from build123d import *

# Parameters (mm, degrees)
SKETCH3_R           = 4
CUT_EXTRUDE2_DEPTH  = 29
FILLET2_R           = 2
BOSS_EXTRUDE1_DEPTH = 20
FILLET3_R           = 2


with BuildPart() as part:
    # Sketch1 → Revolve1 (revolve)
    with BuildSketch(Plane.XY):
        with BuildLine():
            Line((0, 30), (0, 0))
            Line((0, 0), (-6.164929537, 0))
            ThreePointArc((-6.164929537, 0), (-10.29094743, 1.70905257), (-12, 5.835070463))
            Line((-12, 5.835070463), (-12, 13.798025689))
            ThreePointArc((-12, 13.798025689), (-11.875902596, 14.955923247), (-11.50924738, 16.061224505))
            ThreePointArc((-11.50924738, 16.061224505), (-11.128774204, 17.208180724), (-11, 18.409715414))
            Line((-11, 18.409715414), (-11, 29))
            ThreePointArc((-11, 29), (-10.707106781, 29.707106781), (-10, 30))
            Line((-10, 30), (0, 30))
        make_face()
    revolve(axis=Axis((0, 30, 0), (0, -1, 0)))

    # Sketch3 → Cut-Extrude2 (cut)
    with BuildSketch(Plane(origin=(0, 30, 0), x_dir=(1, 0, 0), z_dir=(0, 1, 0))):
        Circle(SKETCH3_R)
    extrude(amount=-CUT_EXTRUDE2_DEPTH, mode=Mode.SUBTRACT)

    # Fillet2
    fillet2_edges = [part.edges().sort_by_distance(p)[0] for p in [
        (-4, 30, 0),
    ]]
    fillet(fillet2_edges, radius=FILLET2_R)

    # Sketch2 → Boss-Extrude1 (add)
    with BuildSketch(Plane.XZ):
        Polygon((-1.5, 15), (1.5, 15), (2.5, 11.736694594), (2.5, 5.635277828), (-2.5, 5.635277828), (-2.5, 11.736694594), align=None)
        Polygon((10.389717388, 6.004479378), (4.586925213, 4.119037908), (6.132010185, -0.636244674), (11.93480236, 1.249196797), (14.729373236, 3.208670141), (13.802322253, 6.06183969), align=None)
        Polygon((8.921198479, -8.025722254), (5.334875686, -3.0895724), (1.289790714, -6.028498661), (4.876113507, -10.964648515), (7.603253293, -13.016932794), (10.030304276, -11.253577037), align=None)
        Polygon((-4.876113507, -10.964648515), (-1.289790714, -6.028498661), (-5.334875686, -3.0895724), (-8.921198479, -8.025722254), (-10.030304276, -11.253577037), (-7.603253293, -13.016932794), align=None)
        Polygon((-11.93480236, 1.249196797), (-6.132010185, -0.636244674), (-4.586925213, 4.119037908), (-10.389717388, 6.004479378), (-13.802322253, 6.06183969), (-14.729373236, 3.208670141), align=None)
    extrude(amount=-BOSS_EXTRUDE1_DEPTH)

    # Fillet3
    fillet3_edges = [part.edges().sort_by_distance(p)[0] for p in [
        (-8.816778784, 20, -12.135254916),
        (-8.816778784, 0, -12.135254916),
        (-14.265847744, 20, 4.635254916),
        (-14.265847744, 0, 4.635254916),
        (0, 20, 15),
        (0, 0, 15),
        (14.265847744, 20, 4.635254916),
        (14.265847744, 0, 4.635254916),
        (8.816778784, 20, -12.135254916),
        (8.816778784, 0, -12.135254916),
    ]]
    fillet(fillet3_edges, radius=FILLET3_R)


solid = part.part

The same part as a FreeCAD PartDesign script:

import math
import FreeCAD as App
import Part
import Sketcher
from FreeCAD import Vector
Q = App.Units.Quantity


def edges_at(feature, points):
    """Names of the edges that pass closest to the given points."""
    edges = feature.Shape.Edges
    near = lambda p: min(range(len(edges)), key=lambda i: edges[i].distToShape(Part.Vertex(*p))[0])
    return sorted({f"Edge{near(p) + 1}" for p in points})

doc = App.newDocument("Part")
body = doc.addObject("PartDesign::Body", "Body")

sketch1 = body.newObject("Sketcher::SketchObject", "Sketch")
sketch1.AttachmentSupport = (doc.getObject("XY_Plane"), [""])
sketch1.MapMode = "FlatFace"
sketch1.addGeometry([
    Part.LineSegment(Vector(0, 0, 0), Vector(0, 30, 0)),
    Part.LineSegment(Vector(0, 30, 0), Vector(-10, 30, 0)),
    Part.ArcOfCircle(Part.Circle(Vector(-10, 29, 0), Vector(0, 0, 1), 1), math.radians(90), math.radians(180)),
    Part.LineSegment(Vector(-11, 29, 0), Vector(-11, 18.4, 0)),
    Part.ArcOfCircle(Part.Circle(Vector(-16.7, 18.4, 0), Vector(0, 0, 1), 5.7), math.radians(-24), math.radians(0)),
    Part.ArcOfCircle(Part.Circle(Vector(-6.5, 13.8, 0), Vector(0, 0, 1), 5.5), math.radians(156), math.radians(180)),
    Part.LineSegment(Vector(-12, 13.8, 0), Vector(-12, 5.8, 0)),
    Part.ArcOfCircle(Part.Circle(Vector(-6.2, 5.8, 0), Vector(0, 0, 1), 5.8), math.radians(180), math.radians(270)),
    Part.LineSegment(Vector(-6.2, 0, 0), Vector(0, 0, 0)),
], False)
sketch1.addConstraint([
    Sketcher.Constraint("Coincident", 0, 2, 1, 1),
    Sketcher.Constraint("Tangent", 1, 2, 2, 1),
    Sketcher.Constraint("Tangent", 2, 2, 3, 1),
    Sketcher.Constraint("Tangent", 3, 2, 4, 2),
    Sketcher.Constraint("Tangent", 4, 1, 5, 1),
    Sketcher.Constraint("Tangent", 5, 2, 6, 1),
    Sketcher.Constraint("Tangent", 6, 2, 7, 1),
    Sketcher.Constraint("Tangent", 7, 2, 8, 1),
    Sketcher.Constraint("Coincident", 8, 2, 0, 1),
    Sketcher.Constraint("Vertical", 0),
    Sketcher.Constraint("Horizontal", 1),
    Sketcher.Constraint("Vertical", 3),
    Sketcher.Constraint("Vertical", 6),
    Sketcher.Constraint("Horizontal", 8),
    Sketcher.Constraint("Coincident", 8, 2, -1, 1),
    Sketcher.Constraint("Radius", 2, 1.0),
    Sketcher.Constraint("DistanceX", 1, 2, 1, 1, 10.0),
    Sketcher.Constraint("DistanceY", 0, 1, 0, 2, 30.0),
    Sketcher.Constraint("DistanceX", 5, 2, -1, 1, 12.0),
    Sketcher.Constraint("Radius", 4, 5.669879),
    Sketcher.Constraint("Radius", 5, 5.463962),
    Sketcher.Constraint("Radius", 7, 5.83507),
    Sketcher.Constraint("DistanceY", 3, 2, 3, 1, 10.590285),
])
revolution = body.newObject("PartDesign::Revolution", "Revolution")
revolution.Profile = sketch1
revolution.ReferenceAxis = (sketch1, ["V_Axis"])
revolution.Angle = 360

sketch2 = body.newObject("Sketcher::SketchObject", "Sketch001")
sketch2.AttachmentSupport = (doc.getObject("XZ_Plane"), [""])
sketch2.MapMode = "FlatFace"
sketch2.AttachmentOffset = App.Placement(Vector(0, 0, -30), App.Rotation())
sketch2.addGeometry(Part.Circle(Vector(0, 0, 0), Vector(0, 0, 1), 4), False)
sketch2.addConstraint([
    Sketcher.Constraint("Coincident", 0, 3, -1, 1),
    Sketcher.Constraint("Diameter", 0, 8.0),
])
pocket1 = body.newObject("PartDesign::Pocket", "Pocket")
pocket1.Profile = sketch2
pocket1.Length = 29
pocket1.Reversed = True
doc.recompute()

fillet = body.newObject("PartDesign::Fillet", "Fillet")
fillet.Base = (pocket1, edges_at(pocket1, [(-4, 30, 0)]))
fillet.Radius = 2

sketch3 = body.newObject("Sketcher::SketchObject", "Sketch002")
sketch3.AttachmentSupport = (doc.getObject("XZ_Plane"), [""])
sketch3.MapMode = "FlatFace"
sketch3.addGeometry([
    Part.LineSegment(Vector(1.5, 15, 0), Vector(-1.5, 15, 0)),
    Part.LineSegment(Vector(-1.5, 15, 0), Vector(-2.5, 11.7, 0)),
    Part.LineSegment(Vector(-2.5, 11.7, 0), Vector(-2.5, 5.6, 0)),
    Part.LineSegment(Vector(-2.5, 5.6, 0), Vector(2.5, 5.6, 0)),
    Part.LineSegment(Vector(2.5, 5.6, 0), Vector(2.5, 11.7, 0)),
    Part.LineSegment(Vector(2.5, 11.7, 0), Vector(1.5, 15, 0)),
    Part.LineSegment(Vector(10.4, 6, 0), Vector(4.6, 4.1, 0)),
    Part.LineSegment(Vector(4.6, 4.1, 0), Vector(6.1, -0.6, 0)),
    Part.LineSegment(Vector(6.1, -0.6, 0), Vector(11.9, 1.2, 0)),
    Part.LineSegment(Vector(11.9, 1.2, 0), Vector(14.7, 3.2, 0)),
    Part.LineSegment(Vector(14.7, 3.2, 0), Vector(13.8, 6.1, 0)),
    Part.LineSegment(Vector(13.8, 6.1, 0), Vector(10.4, 6, 0)),
    Part.LineSegment(Vector(8.9, -8, 0), Vector(5.3, -3.1, 0)),
    Part.LineSegment(Vector(5.3, -3.1, 0), Vector(1.3, -6, 0)),
    Part.LineSegment(Vector(1.3, -6, 0), Vector(4.9, -11, 0)),
    Part.LineSegment(Vector(4.9, -11, 0), Vector(7.6, -13, 0)),
    Part.LineSegment(Vector(7.6, -13, 0), Vector(10, -11.3, 0)),
    Part.LineSegment(Vector(10, -11.3, 0), Vector(8.9, -8, 0)),
    Part.LineSegment(Vector(-4.9, -11, 0), Vector(-1.3, -6, 0)),
    Part.LineSegment(Vector(-1.3, -6, 0), Vector(-5.3, -3.1, 0)),
    Part.LineSegment(Vector(-5.3, -3.1, 0), Vector(-8.9, -8, 0)),
    Part.LineSegment(Vector(-8.9, -8, 0), Vector(-10, -11.3, 0)),
    Part.LineSegment(Vector(-10, -11.3, 0), Vector(-7.6, -13, 0)),
    Part.LineSegment(Vector(-7.6, -13, 0), Vector(-4.9, -11, 0)),
    Part.LineSegment(Vector(-11.9, 1.2, 0), Vector(-6.1, -0.6, 0)),
    Part.LineSegment(Vector(-6.1, -0.6, 0), Vector(-4.6, 4.1, 0)),
    Part.LineSegment(Vector(-4.6, 4.1, 0), Vector(-10.4, 6, 0)),
    Part.LineSegment(Vector(-10.4, 6, 0), Vector(-13.8, 6.1, 0)),
    Part.LineSegment(Vector(-13.8, 6.1, 0), Vector(-14.7, 3.2, 0)),
    Part.LineSegment(Vector(-14.7, 3.2, 0), Vector(-11.9, 1.2, 0)),
], False)
sketch3.addConstraint([
    Sketcher.Constraint("Coincident", 0, 2, 1, 1),
    Sketcher.Constraint("Coincident", 1, 2, 2, 1),
    Sketcher.Constraint("Coincident", 2, 2, 3, 1),
    Sketcher.Constraint("Coincident", 3, 2, 4, 1),
    Sketcher.Constraint("Coincident", 4, 2, 5, 1),
    Sketcher.Constraint("Coincident", 5, 2, 0, 1),
    Sketcher.Constraint("Coincident", 6, 2, 7, 1),
    Sketcher.Constraint("Coincident", 7, 2, 8, 1),
    Sketcher.Constraint("Coincident", 8, 2, 9, 1),
    Sketcher.Constraint("Coincident", 9, 2, 10, 1),
    Sketcher.Constraint("Coincident", 10, 2, 11, 1),
    Sketcher.Constraint("Coincident", 11, 2, 6, 1),
    Sketcher.Constraint("Coincident", 12, 2, 13, 1),
    Sketcher.Constraint("Coincident", 13, 2, 14, 1),
    Sketcher.Constraint("Coincident", 14, 2, 15, 1),
    Sketcher.Constraint("Coincident", 15, 2, 16, 1),
    Sketcher.Constraint("Coincident", 16, 2, 17, 1),
    Sketcher.Constraint("Coincident", 17, 2, 12, 1),
    Sketcher.Constraint("Coincident", 18, 2, 19, 1),
    Sketcher.Constraint("Coincident", 19, 2, 20, 1),
    Sketcher.Constraint("Coincident", 20, 2, 21, 1),
    Sketcher.Constraint("Coincident", 21, 2, 22, 1),
    Sketcher.Constraint("Coincident", 22, 2, 23, 1),
    Sketcher.Constraint("Coincident", 23, 2, 18, 1),
    Sketcher.Constraint("Coincident", 24, 2, 25, 1),
    Sketcher.Constraint("Coincident", 25, 2, 26, 1),
    Sketcher.Constraint("Coincident", 26, 2, 27, 1),
    Sketcher.Constraint("Coincident", 27, 2, 28, 1),
    Sketcher.Constraint("Coincident", 28, 2, 29, 1),
    Sketcher.Constraint("Coincident", 29, 2, 24, 1),
    Sketcher.Constraint("Horizontal", 0),
    Sketcher.Constraint("Vertical", 2),
    Sketcher.Constraint("Horizontal", 3),
    Sketcher.Constraint("Vertical", 4),
    Sketcher.Constraint("Symmetric", 1, 2, 4, 2, -2),
    Sketcher.Constraint("Symmetric", 13, 2, 18, 2, -2),
    Sketcher.Constraint("Symmetric", 12, 2, 19, 2, -2),
    Sketcher.Constraint("Symmetric", 17, 2, 20, 2, -2),
    Sketcher.Constraint("Symmetric", 16, 2, 21, 2, -2),
    Sketcher.Constraint("Symmetric", 15, 2, 22, 2, -2),
    Sketcher.Constraint("Symmetric", 14, 2, 23, 2, -2),
    Sketcher.Constraint("Symmetric", 7, 2, 24, 2, -2),
    Sketcher.Constraint("Symmetric", 6, 2, 25, 2, -2),
    Sketcher.Constraint("Symmetric", 11, 2, 26, 2, -2),
    Sketcher.Constraint("Symmetric", 10, 2, 27, 2, -2),
    Sketcher.Constraint("Symmetric", 9, 2, 28, 2, -2),
    Sketcher.Constraint("Symmetric", 8, 2, 29, 2, -2),
    Sketcher.Constraint("Perpendicular", 6, 7),
    Sketcher.Constraint("Perpendicular", 7, 8),
    Sketcher.Constraint("Perpendicular", 8, 10),
    Sketcher.Constraint("Perpendicular", 12, 13),
    Sketcher.Constraint("Perpendicular", 13, 14),
    Sketcher.Constraint("Perpendicular", 14, 16),
    Sketcher.Constraint("Equal", 1, 5),
    Sketcher.Constraint("Equal", 6, 8),
    Sketcher.Constraint("Equal", 5, 9),
    Sketcher.Constraint("Equal", 9, 11),
    Sketcher.Constraint("Equal", 8, 12),
    Sketcher.Constraint("Equal", 7, 13),
    Sketcher.Constraint("Equal", 12, 14),
    Sketcher.Constraint("Equal", 11, 15),
    Sketcher.Constraint("Equal", 10, 16),
    Sketcher.Constraint("Equal", 15, 17),
    Sketcher.Constraint("DistanceX", 0, 2, 0, 1, 3.0),
    Sketcher.Constraint("DistanceX", 3, 1, 3, 2, 5.0),
    Sketcher.Constraint("Angle", 6, Q("-162 deg")),
    Sketcher.Constraint("Angle", 12, Q("126 deg")),
    Sketcher.Constraint("Distance", 7, 5.0),
    Sketcher.Constraint("Distance", 10, 3.0),
    Sketcher.Constraint("DistanceY", -1, 1, 0, 2, 15.0),
    Sketcher.Constraint("DistanceY", 13, 2, -1, 1, 6.028499),
    Sketcher.Constraint("DistanceX", -1, 1, 17, 2, 8.921198),
    Sketcher.Constraint("DistanceY", 6, 2, 10, 2, 1.942802),
    Sketcher.Constraint("DistanceX", 18, 2, 7, 2, 7.421801),
    Sketcher.Constraint("DistanceY", 2, 2, 26, 2, 0.369202),
    Sketcher.Constraint("DistanceY", 2, 2, 2, 1, 6.101417),
    Sketcher.Constraint("DistanceX", -1, 1, 7, 2, 6.13201),
])
pad1 = body.newObject("PartDesign::Pad", "Pad")
pad1.Profile = sketch3
pad1.Length = 20
pad1.Reversed = True
doc.recompute()

fillet2 = body.newObject("PartDesign::Fillet", "Fillet001")
fillet2.Base = (pad1, edges_at(pad1, [
    (-8.817, 20, -12.135),
    (-8.817, 0, -12.135),
    (-14.266, 20, 4.635),
    (-14.266, 0, 4.635),
    (0, 20, 15),
    (0, 0, 15),
    (14.266, 20, 4.635),
    (14.266, 0, 4.635),
    (8.817, 20, -12.135),
    (8.817, 0, -12.135),
]))
fillet2.Radius = 2

doc.recompute()
